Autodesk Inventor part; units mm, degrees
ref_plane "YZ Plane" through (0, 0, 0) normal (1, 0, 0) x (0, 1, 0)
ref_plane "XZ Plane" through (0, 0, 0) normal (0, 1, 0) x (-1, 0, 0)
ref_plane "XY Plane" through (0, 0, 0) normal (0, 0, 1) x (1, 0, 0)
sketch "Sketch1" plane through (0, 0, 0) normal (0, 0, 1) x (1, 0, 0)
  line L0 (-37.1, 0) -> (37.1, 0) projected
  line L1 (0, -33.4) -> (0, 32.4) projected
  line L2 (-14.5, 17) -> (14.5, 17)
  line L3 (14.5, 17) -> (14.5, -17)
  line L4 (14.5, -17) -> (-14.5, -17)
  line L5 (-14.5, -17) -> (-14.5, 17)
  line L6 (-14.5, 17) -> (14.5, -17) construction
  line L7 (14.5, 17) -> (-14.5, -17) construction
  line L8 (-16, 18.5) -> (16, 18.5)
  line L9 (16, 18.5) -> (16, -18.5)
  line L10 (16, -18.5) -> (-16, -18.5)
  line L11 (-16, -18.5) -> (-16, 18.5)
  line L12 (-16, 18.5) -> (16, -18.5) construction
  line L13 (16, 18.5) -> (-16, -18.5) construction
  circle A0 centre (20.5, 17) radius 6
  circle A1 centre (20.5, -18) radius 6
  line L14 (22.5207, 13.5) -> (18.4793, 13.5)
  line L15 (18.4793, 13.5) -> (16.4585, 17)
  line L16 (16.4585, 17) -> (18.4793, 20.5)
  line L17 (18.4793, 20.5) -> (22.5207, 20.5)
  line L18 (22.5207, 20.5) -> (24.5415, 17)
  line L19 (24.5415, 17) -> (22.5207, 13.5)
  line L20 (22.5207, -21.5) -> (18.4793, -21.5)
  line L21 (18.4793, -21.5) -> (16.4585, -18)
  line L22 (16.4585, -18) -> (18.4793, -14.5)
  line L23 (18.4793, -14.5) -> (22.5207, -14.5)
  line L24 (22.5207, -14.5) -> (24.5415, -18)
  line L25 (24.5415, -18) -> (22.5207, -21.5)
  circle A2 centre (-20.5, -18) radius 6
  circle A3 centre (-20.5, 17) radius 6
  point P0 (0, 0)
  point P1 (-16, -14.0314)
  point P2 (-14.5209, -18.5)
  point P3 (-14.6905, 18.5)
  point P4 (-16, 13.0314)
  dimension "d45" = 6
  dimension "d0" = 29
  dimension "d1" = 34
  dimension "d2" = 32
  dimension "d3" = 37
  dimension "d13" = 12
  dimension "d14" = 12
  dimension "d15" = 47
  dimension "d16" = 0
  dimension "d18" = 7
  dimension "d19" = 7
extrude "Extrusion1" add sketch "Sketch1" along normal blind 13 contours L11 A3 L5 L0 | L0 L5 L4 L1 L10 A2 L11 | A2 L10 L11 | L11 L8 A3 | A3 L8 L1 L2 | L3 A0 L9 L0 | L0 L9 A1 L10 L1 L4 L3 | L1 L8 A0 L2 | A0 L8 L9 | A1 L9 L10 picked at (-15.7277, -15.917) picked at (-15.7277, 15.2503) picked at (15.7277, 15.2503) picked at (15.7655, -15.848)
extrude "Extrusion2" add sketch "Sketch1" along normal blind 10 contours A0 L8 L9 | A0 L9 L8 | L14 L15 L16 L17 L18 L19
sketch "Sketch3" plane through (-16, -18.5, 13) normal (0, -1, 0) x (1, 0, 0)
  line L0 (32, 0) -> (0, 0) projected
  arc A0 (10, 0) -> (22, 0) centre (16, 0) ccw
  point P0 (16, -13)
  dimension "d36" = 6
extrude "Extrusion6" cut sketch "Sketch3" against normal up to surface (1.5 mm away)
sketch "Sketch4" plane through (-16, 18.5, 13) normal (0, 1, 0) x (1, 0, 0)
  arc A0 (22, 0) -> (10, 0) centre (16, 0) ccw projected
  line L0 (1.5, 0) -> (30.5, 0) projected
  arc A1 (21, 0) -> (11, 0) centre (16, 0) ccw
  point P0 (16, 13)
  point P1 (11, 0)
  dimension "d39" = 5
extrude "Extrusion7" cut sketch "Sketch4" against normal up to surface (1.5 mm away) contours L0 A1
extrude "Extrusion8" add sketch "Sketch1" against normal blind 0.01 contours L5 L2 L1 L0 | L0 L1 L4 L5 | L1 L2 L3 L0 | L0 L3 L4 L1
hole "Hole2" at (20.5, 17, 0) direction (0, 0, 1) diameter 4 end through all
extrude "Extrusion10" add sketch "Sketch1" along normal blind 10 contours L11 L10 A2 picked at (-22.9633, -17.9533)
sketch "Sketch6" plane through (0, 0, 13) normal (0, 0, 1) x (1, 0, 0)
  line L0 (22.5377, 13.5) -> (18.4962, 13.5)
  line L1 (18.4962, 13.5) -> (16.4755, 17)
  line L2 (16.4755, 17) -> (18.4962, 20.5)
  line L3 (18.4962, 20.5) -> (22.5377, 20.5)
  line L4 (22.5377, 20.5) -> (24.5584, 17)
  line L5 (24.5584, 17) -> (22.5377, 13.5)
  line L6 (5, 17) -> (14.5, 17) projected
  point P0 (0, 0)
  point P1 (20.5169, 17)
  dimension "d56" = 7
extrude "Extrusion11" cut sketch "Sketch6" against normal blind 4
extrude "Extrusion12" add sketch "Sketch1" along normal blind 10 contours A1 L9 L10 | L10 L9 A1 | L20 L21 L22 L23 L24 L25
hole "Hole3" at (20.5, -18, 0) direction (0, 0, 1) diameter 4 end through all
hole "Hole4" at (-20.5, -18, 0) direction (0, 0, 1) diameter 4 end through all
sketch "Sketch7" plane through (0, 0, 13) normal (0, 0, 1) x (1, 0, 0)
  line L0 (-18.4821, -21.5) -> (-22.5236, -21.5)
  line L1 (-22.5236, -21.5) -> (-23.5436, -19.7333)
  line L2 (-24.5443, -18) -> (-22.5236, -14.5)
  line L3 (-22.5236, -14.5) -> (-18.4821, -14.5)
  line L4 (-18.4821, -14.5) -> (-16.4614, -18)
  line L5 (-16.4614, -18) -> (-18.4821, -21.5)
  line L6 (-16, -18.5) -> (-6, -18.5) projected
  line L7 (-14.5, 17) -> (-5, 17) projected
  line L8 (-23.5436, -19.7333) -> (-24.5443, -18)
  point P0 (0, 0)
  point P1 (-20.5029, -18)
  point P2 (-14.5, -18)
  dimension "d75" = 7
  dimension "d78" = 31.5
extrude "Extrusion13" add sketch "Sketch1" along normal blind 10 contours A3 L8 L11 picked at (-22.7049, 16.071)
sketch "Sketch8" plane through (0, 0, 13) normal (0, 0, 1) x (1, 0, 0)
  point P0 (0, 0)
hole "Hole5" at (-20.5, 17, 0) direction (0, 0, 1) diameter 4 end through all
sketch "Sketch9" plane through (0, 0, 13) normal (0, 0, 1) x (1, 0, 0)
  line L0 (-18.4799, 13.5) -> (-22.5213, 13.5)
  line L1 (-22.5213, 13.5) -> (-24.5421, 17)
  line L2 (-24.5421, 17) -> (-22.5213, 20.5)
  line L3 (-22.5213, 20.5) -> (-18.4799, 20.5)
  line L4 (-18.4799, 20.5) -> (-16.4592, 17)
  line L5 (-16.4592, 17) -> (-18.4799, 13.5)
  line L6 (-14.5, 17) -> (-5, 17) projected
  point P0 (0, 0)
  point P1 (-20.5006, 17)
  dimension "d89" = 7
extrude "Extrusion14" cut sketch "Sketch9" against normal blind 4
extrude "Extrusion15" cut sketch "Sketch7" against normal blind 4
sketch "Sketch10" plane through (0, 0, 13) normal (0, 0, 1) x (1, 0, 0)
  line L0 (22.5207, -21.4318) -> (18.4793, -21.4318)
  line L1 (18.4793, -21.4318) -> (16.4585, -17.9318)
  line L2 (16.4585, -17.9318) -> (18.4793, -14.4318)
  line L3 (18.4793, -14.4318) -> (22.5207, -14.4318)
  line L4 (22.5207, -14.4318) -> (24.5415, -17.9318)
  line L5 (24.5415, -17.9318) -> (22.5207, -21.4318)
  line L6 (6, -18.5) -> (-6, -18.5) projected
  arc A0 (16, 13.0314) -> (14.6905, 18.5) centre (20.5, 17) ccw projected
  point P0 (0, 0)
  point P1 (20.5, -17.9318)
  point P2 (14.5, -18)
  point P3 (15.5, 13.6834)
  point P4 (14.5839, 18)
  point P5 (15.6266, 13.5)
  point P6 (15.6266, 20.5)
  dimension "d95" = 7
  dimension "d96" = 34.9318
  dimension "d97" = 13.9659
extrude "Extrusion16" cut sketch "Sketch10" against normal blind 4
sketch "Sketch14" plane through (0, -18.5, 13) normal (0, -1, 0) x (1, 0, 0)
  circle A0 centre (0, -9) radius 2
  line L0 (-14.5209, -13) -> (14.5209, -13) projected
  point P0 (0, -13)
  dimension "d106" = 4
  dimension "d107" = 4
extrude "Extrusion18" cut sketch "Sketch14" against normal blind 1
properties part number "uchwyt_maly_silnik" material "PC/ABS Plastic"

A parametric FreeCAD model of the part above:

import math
import FreeCAD as App
import Part
import Sketcher

V = App.Vector
Q = App.Units.Quantity


def add_polygon(sketch, points):
    """Adds a closed chain of lines whose ends are joined by coincident constraints."""
    first, n = sketch.GeometryCount, len(points)
    for a, b in zip(points, points[1:] + points[:1]):
        sketch.addGeometry(Part.LineSegment(App.Vector(*a, 0), App.Vector(*b, 0)), False)
    for i in range(n):
        sketch.addConstraint(Sketcher.Constraint("Coincident", first + i, 2, first + (i + 1) % n, 1))

doc = App.newDocument("Part")
body = doc.addObject("PartDesign::Body", "Body")
body.AllowCompound = True

sketch1 = body.newObject("Sketcher::SketchObject", "Sketch")
sketch1.AttachmentSupport = (doc.getObject("XY_Plane"), [""])
sketch1.MapMode = "FlatFace"
add_polygon(sketch1, [(-16, -18), (16, -18), (16, 18), (-16, 18)])
add_polygon(sketch1, [(-14, 17), (14, 17), (14, -17), (-14, -17)])
sketch1.addConstraint([
    Sketcher.Constraint("Horizontal", 0),
    Sketcher.Constraint("Vertical", 1),
    Sketcher.Constraint("Horizontal", 2),
    Sketcher.Constraint("Vertical", 3),
    Sketcher.Constraint("Horizontal", 4),
    Sketcher.Constraint("Vertical", 5),
    Sketcher.Constraint("Horizontal", 6),
    Sketcher.Constraint("Vertical", 7),
    Sketcher.Constraint("Symmetric", 0, 2, 2, 2, -1, 1),
    Sketcher.Constraint("Symmetric", 4, 2, 6, 2, -1, 1),
    Sketcher.Constraint("DistanceX", 0, 1, 0, 2, 32.0),
    Sketcher.Constraint("DistanceX", 4, 1, 4, 2, 29.0),
    Sketcher.Constraint("DistanceY", 1, 1, 1, 2, 37.0),
    Sketcher.Constraint("DistanceY", 5, 2, 5, 1, 34.0),
])
pad1 = body.newObject("PartDesign::Pad", "Pad")
pad1.Profile = sketch1
pad1.Length = 13

sketch2 = body.newObject("Sketcher::SketchObject", "Sketch001")
sketch2.AttachmentSupport = (doc.getObject("XY_Plane"), [""])
sketch2.MapMode = "FlatFace"
sketch2.addGeometry(Part.Circle(V(20, 17, 0), V(0, 0, 1), 6), False)
sketch2.addConstraint([
    Sketcher.Constraint("Diameter", 0, 12.0),
    Sketcher.Constraint("DistanceY", -1, 1, 0, 3, 17.0),
    Sketcher.Constraint("DistanceX", -1, 1, 0, 3, 20.5),
])
pad2 = body.newObject("PartDesign::Pad", "Pad001")
pad2.Profile = sketch2
pad2.Length = 10

sketch3 = body.newObject("Sketcher::SketchObject", "Sketch002")
sketch3.AttachmentSupport = (doc.getObject("XZ_Plane"), [""])
sketch3.MapMode = "FlatFace"
sketch3.AttachmentOffset = App.Placement(V(0, 0, 18.5), App.Rotation())
sketch3.addGeometry([
    Part.ArcOfCircle(Part.Circle(V(0, 13, 0), V(0, 0, 1), 6), math.radians(180), math.radians(360)),
    Part.LineSegment(V(6, 13, 0), V(-6, 13, 0)),
], False)
sketch3.addConstraint([
    Sketcher.Constraint("Coincident", 0, 1, 1, 2),
    Sketcher.Constraint("Coincident", 1, 1, 0, 2),
    Sketcher.Constraint("Horizontal", 1),
    Sketcher.Constraint("PointOnObject", 0, 3, -2),
    Sketcher.Constraint("Radius", 0, 6.0),
    Sketcher.Constraint("DistanceY", -1, 1, 0, 3, 13.0),
    Sketcher.Constraint("DistanceY", -1, 1, 0, 1, 13.0),
])
pocket1 = body.newObject("PartDesign::Pocket", "Pocket")
pocket1.Profile = sketch3
pocket1.Length = 1.5

sketch4 = body.newObject("Sketcher::SketchObject", "Sketch003")
sketch4.AttachmentSupport = (doc.getObject("XZ_Plane"), [""])
sketch4.MapMode = "FlatFace"
sketch4.AttachmentOffset = App.Placement(V(0, 0, -18.5), App.Rotation())
sketch4.addGeometry([
    Part.LineSegment(V(-5, 13, 0), V(5, 13, 0)),
    Part.ArcOfCircle(Part.Circle(V(0, 13, 0), V(0, 0, 1), 5), math.radians(180), math.radians(360)),
], False)
sketch4.addConstraint([
    Sketcher.Constraint("Coincident", 0, 1, 1, 1),
    Sketcher.Constraint("Coincident", 1, 2, 0, 2),
    Sketcher.Constraint("Horizontal", 0),
    Sketcher.Constraint("PointOnObject", 1, 3, -2),
    Sketcher.Constraint("Horizontal", 1, 3, 0, 1),
    Sketcher.Constraint("Radius", 1, 5.0),
    Sketcher.Constraint("DistanceY", -1, 1, 1, 3, 13.0),
])
pocket2 = body.newObject("PartDesign::Pocket", "Pocket001")
pocket2.Profile = sketch4
pocket2.Length = 1.5
pocket2.Reversed = True

sketch5 = body.newObject("Sketcher::SketchObject", "Sketch004")
sketch5.AttachmentSupport = (doc.getObject("XY_Plane"), [""])
sketch5.MapMode = "FlatFace"
add_polygon(sketch5, [(-14, 17), (-14, -17), (14, -17), (14, 17)])
sketch5.addConstraint([
    Sketcher.Constraint("Vertical", 0),
    Sketcher.Constraint("Horizontal", 1),
    Sketcher.Constraint("Vertical", 2),
    Sketcher.Constraint("Horizontal", 3),
    Sketcher.Constraint("Symmetric", 0, 2, 2, 2, -1, 1),
    Sketcher.Constraint("DistanceX", 1, 1, 1, 2, 29.0),
    Sketcher.Constraint("DistanceY", 0, 2, 0, 1, 34.0),
])
pad3 = body.newObject("PartDesign::Pad", "Pad002")
pad3.Profile = sketch5
pad3.Length = 0.01
pad3.Reversed = True

sketch6 = body.newObject("Sketcher::SketchObject", "Sketch005")
sketch6.AttachmentSupport = (doc.getObject("XY_Plane"), [""])
sketch6.MapMode = "FlatFace"
sketch6.addGeometry(Part.Circle(V(20.5, 17, 0), V(0, 0, 1), 2), False)
sketch6.addConstraint([
    Sketcher.Constraint("Diameter", 0, 4.0),
    Sketcher.Constraint("DistanceY", -1, 1, 0, 3, 17.0),
    Sketcher.Constraint("DistanceX", -1, 1, 0, 3, 20.5),
])
doc.recompute()
hole = body.newObject("PartDesign::Hole", "Hole")
hole.Profile = sketch6
hole.ThreadType = "None"
hole.Diameter = 4
hole.DepthType = "ThroughAll"
hole.Reversed = True

sketch7 = body.newObject("Sketcher::SketchObject", "Sketch006")
sketch7.AttachmentSupport = (doc.getObject("XY_Plane"), [""])
sketch7.MapMode = "FlatFace"
sketch7.addGeometry([
    Part.LineSegment(V(-16, -18.5, 0), V(-16, -14, 0)),
    Part.ArcOfCircle(Part.Circle(V(-20.5, -18, 0), V(0, 0, 1), 6), math.radians(41), math.radians(355)),
    Part.LineSegment(V(-14.5, -18.5, 0), V(-16, -18.5, 0)),
], False)
sketch7.addConstraint([
    Sketcher.Constraint("Coincident", 0, 2, 1, 1),
    Sketcher.Constraint("Coincident", 1, 2, 2, 1),
    Sketcher.Constraint("Coincident", 2, 2, 0, 1),
    Sketcher.Constraint("Vertical", 0),
    Sketcher.Constraint("Horizontal", 2),
    Sketcher.Constraint("Radius", 1, 6.0),
    Sketcher.Constraint("DistanceY", 1, 3, -1, 1, 18.0),
    Sketcher.Constraint("DistanceX", 0, 2, -1, 1, 16.0),
    Sketcher.Constraint("DistanceX", 1, 3, -1, 1, 20.5),
    Sketcher.Constraint("DistanceY", 1, 2, -1, 1, 18.5),
])
pad4 = body.newObject("PartDesign::Pad", "Pad003")
pad4.Profile = sketch7
pad4.Length = 10

sketch8 = body.newObject("Sketcher::SketchObject", "Sketch007")
sketch8.AttachmentSupport = (doc.getObject("XY_Plane"), [""])
sketch8.MapMode = "FlatFace"
sketch8.AttachmentOffset = App.Placement(V(0, 0, 13), App.Rotation())
add_polygon(sketch8, [(18.5, 13.5), (22.5, 13.5), (24.6, 17), (22.5, 20.5), (18.5, 20.5), (16.5, 17)])
sketch8.addConstraint([
    Sketcher.Constraint("Horizontal", 0),
    Sketcher.Constraint("Horizontal", 3),
    Sketcher.Constraint("Parallel", 1, 4),
    Sketcher.Constraint("Parallel", 2, 5),
    Sketcher.Constraint("Horizontal", 1, 2, 4, 2),
    Sketcher.Constraint("Vertical", 0, 2, 2, 2),
    Sketcher.Constraint("Vertical", 3, 2, 5, 2),
    Sketcher.Constraint("DistanceY", 0, 2, 2, 2, 7.0),
    Sketcher.Constraint("Angle", 1, Q("60.0003 deg")),
    Sketcher.Constraint("DistanceY", -1, 1, 1, 2, 17.0),
    Sketcher.Constraint("DistanceX", 0, 1, 0, 2, 4.0415),
    Sketcher.Constraint("DistanceX", -1, 1, 0, 2, 22.5377),
])
pocket3 = body.newObject("PartDesign::Pocket", "Pocket002")
pocket3.Profile = sketch8
pocket3.Length = 4

sketch9 = body.newObject("Sketcher::SketchObject", "Sketch008")
sketch9.AttachmentSupport = (doc.getObject("XY_Plane"), [""])
sketch9.MapMode = "FlatFace"
sketch9.addGeometry(Part.Circle(V(20, -18, 0), V(0, 0, 1), 6), False)
sketch9.addConstraint([
    Sketcher.Constraint("Diameter", 0, 12.0),
    Sketcher.Constraint("DistanceY", 0, 3, -1, 1, 18.0),
    Sketcher.Constraint("DistanceX", -1, 1, 0, 3, 20.5),
])
pad5 = body.newObject("PartDesign::Pad", "Pad004")
pad5.Profile = sketch9
pad5.Length = 10

sketch10 = body.newObject("Sketcher::SketchObject", "Sketch009")
sketch10.AttachmentSupport = (doc.getObject("XY_Plane"), [""])
sketch10.MapMode = "FlatFace"
sketch10.addGeometry(Part.Circle(V(20.5, -18, 0), V(0, 0, 1), 2), False)
sketch10.addConstraint([
    Sketcher.Constraint("Diameter", 0, 4.0),
    Sketcher.Constraint("DistanceY", 0, 3, -1, 1, 18.0),
    Sketcher.Constraint("DistanceX", -1, 1, 0, 3, 20.5),
])
doc.recompute()
hole2 = body.newObject("PartDesign::Hole", "Hole001")
hole2.Profile = sketch10
hole2.ThreadType = "None"
hole2.Diameter = 4
hole2.DepthType = "ThroughAll"
hole2.Reversed = True

sketch11 = body.newObject("Sketcher::SketchObject", "Sketch010")
sketch11.AttachmentSupport = (doc.getObject("XY_Plane"), [""])
sketch11.MapMode = "FlatFace"
sketch11.addGeometry(Part.Circle(V(-20.5, -18, 0), V(0, 0, 1), 2), False)
sketch11.addConstraint([
    Sketcher.Constraint("Diameter", 0, 4.0),
    Sketcher.Constraint("DistanceY", 0, 3, -1, 1, 18.0),
    Sketcher.Constraint("DistanceX", 0, 3, -1, 1, 20.5),
])
doc.recompute()
hole3 = body.newObject("PartDesign::Hole", "Hole002")
hole3.Profile = sketch11
hole3.ThreadType = "None"
hole3.Diameter = 4
hole3.DepthType = "ThroughAll"
hole3.Reversed = True

sketch12 = body.newObject("Sketcher::SketchObject", "Sketch011")
sketch12.AttachmentSupport = (doc.getObject("XY_Plane"), [""])
sketch12.MapMode = "FlatFace"
sketch12.addGeometry([
    Part.ArcOfCircle(Part.Circle(V(-20.5, 17, 0), V(0, 0, 1), 6), math.radians(14), math.radians(319)),
    Part.LineSegment(V(-16, 13, 0), V(-16, 18.5, 0)),
    Part.LineSegment(V(-16, 18.5, 0), V(-14.7, 18.5, 0)),
], False)
sketch12.addConstraint([
    Sketcher.Constraint("Coincident", 0, 2, 1, 1),
    Sketcher.Constraint("Coincident", 1, 2, 2, 1),
    Sketcher.Constraint("Coincident", 2, 2, 0, 1),
    Sketcher.Constraint("Vertical", 1),
    Sketcher.Constraint("Horizontal", 2),
    Sketcher.Constraint("Radius", 0, 6.0),
    Sketcher.Constraint("DistanceY", -1, 1, 0, 3, 17.0),
    Sketcher.Constraint("DistanceX", 0, 2, -1, 1, 16.0),
    Sketcher.Constraint("DistanceX", 0, 3, -1, 1, 20.5),
    Sketcher.Constraint("DistanceY", -1, 1, 1, 2, 18.5),
])
pad6 = body.newObject("PartDesign::Pad", "Pad005")
pad6.Profile = sketch12
pad6.Length = 10

sketch13 = body.newObject("Sketcher::SketchObject", "Sketch012")
sketch13.AttachmentSupport = (doc.getObject("XY_Plane"), [""])
sketch13.MapMode = "FlatFace"
sketch13.addGeometry(Part.Circle(V(-20.5, 17, 0), V(0, 0, 1), 2), False)
sketch13.addConstraint([
    Sketcher.Constraint("Diameter", 0, 4.0),
    Sketcher.Constraint("DistanceY", -1, 1, 0, 3, 17.0),
    Sketcher.Constraint("DistanceX", 0, 3, -1, 1, 20.5),
])
doc.recompute()
hole4 = body.newObject("PartDesign::Hole", "Hole003")
hole4.Profile = sketch13
hole4.ThreadType = "None"
hole4.Diameter = 4
hole4.DepthType = "ThroughAll"
hole4.Reversed = True

sketch14 = body.newObject("Sketcher::SketchObject", "Sketch013")
sketch14.AttachmentSupport = (doc.getObject("XY_Plane"), [""])
sketch14.MapMode = "FlatFace"
sketch14.AttachmentOffset = App.Placement(V(0, 0, 13), App.Rotation())
add_polygon(sketch14, [(-22.5, 13.5), (-18.5, 13.5), (-16.5, 17), (-18.5, 20.5), (-22.5, 20.5), (-24.5, 17)])
sketch14.addConstraint([
    Sketcher.Constraint("Horizontal", 0),
    Sketcher.Constraint("Horizontal", 3),
    Sketcher.Constraint("Parallel", 1, 4),
    Sketcher.Constraint("Parallel", 2, 5),
    Sketcher.Constraint("Horizontal", 1, 2, 4, 2),
    Sketcher.Constraint("Vertical", 0, 2, 2, 2),
    Sketcher.Constraint("Vertical", 3, 2, 5, 2),
    Sketcher.Constraint("DistanceY", 0, 2, 2, 2, 7.0),
    Sketcher.Constraint("Angle", 1, Q("60.0003 deg")),
    Sketcher.Constraint("DistanceY", -1, 1, 1, 2, 17.0),
    Sketcher.Constraint("DistanceX", 0, 2, -1, 1, 18.48),
    Sketcher.Constraint("DistanceX", 0, 1, 0, 2, 4.0414),
])
pocket4 = body.newObject("PartDesign::Pocket", "Pocket003")
pocket4.Profile = sketch14
pocket4.Length = 4

sketch15 = body.newObject("Sketcher::SketchObject", "Sketch014")
sketch15.AttachmentSupport = (doc.getObject("XY_Plane"), [""])
sketch15.MapMode = "FlatFace"
sketch15.AttachmentOffset = App.Placement(V(0, 0, 13), App.Rotation())
add_polygon(sketch15, [(-22.5, -21.5), (-18.5, -21.5), (-16.5, -18), (-18.5, -14.5), (-22.5, -14.5), (-24.5, -18), (-23.5, -19.7)])
sketch15.addConstraint([
    Sketcher.Constraint("Horizontal", 0),
    Sketcher.Constraint("Horizontal", 3),
    Sketcher.Constraint("Parallel", 1, 4),
    Sketcher.Constraint("Parallel", 2, 5),
    Sketcher.Constraint("Parallel", 5, 6),
    Sketcher.Constraint("Horizontal", 1, 2, 4, 2),
    Sketcher.Constraint("Vertical", 0, 2, 2, 2),
    Sketcher.Constraint("Vertical", 3, 2, 6, 2),
    Sketcher.Constraint("DistanceY", 0, 2, 2, 2, 7.0),
    Sketcher.Constraint("Angle", 1, Q("60.0003 deg")),
    Sketcher.Constraint("DistanceY", 1, 2, -1, 1, 18.0),
    Sketcher.Constraint("Distance", 6, 2.04),
    Sketcher.Constraint("DistanceX", 0, 1, 0, 2, 4.0415),
    Sketcher.Constraint("DistanceX", 0, 2, -1, 1, 18.482),
])
pocket5 = body.newObject("PartDesign::Pocket", "Pocket004")
pocket5.Profile = sketch15
pocket5.Length = 4

sketch16 = body.newObject("Sketcher::SketchObject", "Sketch015")
sketch16.AttachmentSupport = (doc.getObject("XY_Plane"), [""])
sketch16.MapMode = "FlatFace"
sketch16.AttachmentOffset = App.Placement(V(0, 0, 13), App.Rotation())
add_polygon(sketch16, [(18.5, -21.4), (22.5, -21.4), (24.5, -17.9), (22.5, -14.4), (18.5, -14.4), (16.5, -17.9)])
sketch16.addConstraint([
    Sketcher.Constraint("Horizontal", 0),
    Sketcher.Constraint("Horizontal", 3),
    Sketcher.Constraint("Parallel", 1, 4),
    Sketcher.Constraint("Parallel", 2, 5),
    Sketcher.Constraint("Horizontal", 1, 2, 4, 2),
    Sketcher.Constraint("Vertical", 0, 2, 2, 2),
    Sketcher.Constraint("Vertical", 3, 2, 5, 2),
    Sketcher.Constraint("DistanceY", 0, 2, 2, 2, 7.0),
    Sketcher.Constraint("Angle", 1, Q("59.999 deg")),
    Sketcher.Constraint("DistanceX", 0, 1, 0, 2, 4.0414),
    Sketcher.Constraint("DistanceX", -1, 1, 0, 2, 22.5207),
    Sketcher.Constraint("DistanceY", 0, 2, -1, 1, 21.4318),
])
pocket6 = body.newObject("PartDesign::Pocket", "Pocket005")
pocket6.Profile = sketch16
pocket6.Length = 4

sketch17 = body.newObject("Sketcher::SketchObject", "Sketch016")
sketch17.AttachmentSupport = (doc.getObject("XZ_Plane"), [""])
sketch17.MapMode = "FlatFace"
sketch17.AttachmentOffset = App.Placement(V(0, 0, 18.5), App.Rotation())
sketch17.addGeometry(Part.Circle(V(0, 4, 0), V(0, 0, 1), 2), False)
sketch17.addConstraint([
    Sketcher.Constraint("PointOnObject", 0, 3, -2),
    Sketcher.Constraint("Diameter", 0, 4.0),
    Sketcher.Constraint("DistanceY", -1, 1, 0, 3, 4.0),
])
pocket7 = body.newObject("PartDesign::Pocket", "Pocket006")
pocket7.Profile = sketch17
pocket7.Length = 1

doc.recompute()
